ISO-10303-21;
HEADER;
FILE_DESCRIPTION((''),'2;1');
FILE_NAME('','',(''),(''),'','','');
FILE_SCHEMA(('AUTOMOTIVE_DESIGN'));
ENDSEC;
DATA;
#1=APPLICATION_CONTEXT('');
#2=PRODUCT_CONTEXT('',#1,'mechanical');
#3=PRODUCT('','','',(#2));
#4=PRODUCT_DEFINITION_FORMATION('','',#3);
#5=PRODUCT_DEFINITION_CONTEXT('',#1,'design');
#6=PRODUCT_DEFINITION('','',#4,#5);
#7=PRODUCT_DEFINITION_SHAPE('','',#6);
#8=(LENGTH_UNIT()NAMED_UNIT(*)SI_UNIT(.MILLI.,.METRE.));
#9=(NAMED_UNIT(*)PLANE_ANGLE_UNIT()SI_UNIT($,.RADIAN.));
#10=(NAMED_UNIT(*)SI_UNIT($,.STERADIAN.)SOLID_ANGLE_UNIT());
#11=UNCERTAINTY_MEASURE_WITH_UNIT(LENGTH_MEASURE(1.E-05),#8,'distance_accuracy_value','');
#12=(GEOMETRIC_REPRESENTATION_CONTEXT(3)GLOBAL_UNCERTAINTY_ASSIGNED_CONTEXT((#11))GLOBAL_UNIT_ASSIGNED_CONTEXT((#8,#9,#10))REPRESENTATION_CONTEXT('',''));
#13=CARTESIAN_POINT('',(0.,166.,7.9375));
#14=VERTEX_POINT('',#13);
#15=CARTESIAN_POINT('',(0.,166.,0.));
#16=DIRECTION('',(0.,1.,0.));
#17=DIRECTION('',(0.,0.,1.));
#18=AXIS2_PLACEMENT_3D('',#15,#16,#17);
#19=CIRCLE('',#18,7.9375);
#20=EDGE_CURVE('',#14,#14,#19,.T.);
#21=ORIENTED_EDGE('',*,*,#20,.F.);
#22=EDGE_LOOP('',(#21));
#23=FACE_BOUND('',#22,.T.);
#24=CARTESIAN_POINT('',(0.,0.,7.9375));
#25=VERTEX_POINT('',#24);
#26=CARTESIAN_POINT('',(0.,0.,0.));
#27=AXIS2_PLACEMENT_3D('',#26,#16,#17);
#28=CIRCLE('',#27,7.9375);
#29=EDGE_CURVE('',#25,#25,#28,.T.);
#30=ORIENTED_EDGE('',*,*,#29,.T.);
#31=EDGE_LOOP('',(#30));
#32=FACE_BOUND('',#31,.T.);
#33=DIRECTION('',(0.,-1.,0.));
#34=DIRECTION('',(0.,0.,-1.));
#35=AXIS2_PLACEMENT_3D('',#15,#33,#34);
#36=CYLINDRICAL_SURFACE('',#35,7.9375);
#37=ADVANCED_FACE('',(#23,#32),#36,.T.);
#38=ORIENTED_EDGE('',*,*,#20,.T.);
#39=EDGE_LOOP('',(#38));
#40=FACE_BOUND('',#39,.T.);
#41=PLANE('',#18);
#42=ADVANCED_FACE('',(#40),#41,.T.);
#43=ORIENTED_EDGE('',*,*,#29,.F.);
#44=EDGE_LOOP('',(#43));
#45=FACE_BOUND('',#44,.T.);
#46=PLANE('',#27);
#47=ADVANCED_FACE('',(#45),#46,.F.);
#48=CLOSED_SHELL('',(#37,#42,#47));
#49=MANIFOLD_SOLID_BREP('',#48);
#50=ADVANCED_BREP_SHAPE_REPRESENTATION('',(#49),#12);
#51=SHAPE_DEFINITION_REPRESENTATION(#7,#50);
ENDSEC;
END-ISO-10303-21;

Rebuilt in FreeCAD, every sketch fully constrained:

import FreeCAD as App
import Part
import Sketcher
from FreeCAD import Vector

doc = App.newDocument("Part")
body = doc.addObject("PartDesign::Body", "Body")

# Sketch on XZ plane
sketch1 = body.newObject("Sketcher::SketchObject", "Sketch")
sketch1.AttachmentSupport = (doc.getObject("XZ_Plane"), [""])
sketch1.MapMode = "FlatFace"
sketch1.addGeometry(Part.Circle(Vector(0, 0, 0), Vector(0, 0, 1), 7.9375), False)
sketch1.addConstraint([
    Sketcher.Constraint("Coincident", 0, 3, -1, 1),
    Sketcher.Constraint("Diameter", 0, 15.875),
])
pad1 = body.newObject("PartDesign::Pad", "Pad")
pad1.Profile = sketch1
pad1.Length = 166
pad1.Reversed = True

doc.recompute()
